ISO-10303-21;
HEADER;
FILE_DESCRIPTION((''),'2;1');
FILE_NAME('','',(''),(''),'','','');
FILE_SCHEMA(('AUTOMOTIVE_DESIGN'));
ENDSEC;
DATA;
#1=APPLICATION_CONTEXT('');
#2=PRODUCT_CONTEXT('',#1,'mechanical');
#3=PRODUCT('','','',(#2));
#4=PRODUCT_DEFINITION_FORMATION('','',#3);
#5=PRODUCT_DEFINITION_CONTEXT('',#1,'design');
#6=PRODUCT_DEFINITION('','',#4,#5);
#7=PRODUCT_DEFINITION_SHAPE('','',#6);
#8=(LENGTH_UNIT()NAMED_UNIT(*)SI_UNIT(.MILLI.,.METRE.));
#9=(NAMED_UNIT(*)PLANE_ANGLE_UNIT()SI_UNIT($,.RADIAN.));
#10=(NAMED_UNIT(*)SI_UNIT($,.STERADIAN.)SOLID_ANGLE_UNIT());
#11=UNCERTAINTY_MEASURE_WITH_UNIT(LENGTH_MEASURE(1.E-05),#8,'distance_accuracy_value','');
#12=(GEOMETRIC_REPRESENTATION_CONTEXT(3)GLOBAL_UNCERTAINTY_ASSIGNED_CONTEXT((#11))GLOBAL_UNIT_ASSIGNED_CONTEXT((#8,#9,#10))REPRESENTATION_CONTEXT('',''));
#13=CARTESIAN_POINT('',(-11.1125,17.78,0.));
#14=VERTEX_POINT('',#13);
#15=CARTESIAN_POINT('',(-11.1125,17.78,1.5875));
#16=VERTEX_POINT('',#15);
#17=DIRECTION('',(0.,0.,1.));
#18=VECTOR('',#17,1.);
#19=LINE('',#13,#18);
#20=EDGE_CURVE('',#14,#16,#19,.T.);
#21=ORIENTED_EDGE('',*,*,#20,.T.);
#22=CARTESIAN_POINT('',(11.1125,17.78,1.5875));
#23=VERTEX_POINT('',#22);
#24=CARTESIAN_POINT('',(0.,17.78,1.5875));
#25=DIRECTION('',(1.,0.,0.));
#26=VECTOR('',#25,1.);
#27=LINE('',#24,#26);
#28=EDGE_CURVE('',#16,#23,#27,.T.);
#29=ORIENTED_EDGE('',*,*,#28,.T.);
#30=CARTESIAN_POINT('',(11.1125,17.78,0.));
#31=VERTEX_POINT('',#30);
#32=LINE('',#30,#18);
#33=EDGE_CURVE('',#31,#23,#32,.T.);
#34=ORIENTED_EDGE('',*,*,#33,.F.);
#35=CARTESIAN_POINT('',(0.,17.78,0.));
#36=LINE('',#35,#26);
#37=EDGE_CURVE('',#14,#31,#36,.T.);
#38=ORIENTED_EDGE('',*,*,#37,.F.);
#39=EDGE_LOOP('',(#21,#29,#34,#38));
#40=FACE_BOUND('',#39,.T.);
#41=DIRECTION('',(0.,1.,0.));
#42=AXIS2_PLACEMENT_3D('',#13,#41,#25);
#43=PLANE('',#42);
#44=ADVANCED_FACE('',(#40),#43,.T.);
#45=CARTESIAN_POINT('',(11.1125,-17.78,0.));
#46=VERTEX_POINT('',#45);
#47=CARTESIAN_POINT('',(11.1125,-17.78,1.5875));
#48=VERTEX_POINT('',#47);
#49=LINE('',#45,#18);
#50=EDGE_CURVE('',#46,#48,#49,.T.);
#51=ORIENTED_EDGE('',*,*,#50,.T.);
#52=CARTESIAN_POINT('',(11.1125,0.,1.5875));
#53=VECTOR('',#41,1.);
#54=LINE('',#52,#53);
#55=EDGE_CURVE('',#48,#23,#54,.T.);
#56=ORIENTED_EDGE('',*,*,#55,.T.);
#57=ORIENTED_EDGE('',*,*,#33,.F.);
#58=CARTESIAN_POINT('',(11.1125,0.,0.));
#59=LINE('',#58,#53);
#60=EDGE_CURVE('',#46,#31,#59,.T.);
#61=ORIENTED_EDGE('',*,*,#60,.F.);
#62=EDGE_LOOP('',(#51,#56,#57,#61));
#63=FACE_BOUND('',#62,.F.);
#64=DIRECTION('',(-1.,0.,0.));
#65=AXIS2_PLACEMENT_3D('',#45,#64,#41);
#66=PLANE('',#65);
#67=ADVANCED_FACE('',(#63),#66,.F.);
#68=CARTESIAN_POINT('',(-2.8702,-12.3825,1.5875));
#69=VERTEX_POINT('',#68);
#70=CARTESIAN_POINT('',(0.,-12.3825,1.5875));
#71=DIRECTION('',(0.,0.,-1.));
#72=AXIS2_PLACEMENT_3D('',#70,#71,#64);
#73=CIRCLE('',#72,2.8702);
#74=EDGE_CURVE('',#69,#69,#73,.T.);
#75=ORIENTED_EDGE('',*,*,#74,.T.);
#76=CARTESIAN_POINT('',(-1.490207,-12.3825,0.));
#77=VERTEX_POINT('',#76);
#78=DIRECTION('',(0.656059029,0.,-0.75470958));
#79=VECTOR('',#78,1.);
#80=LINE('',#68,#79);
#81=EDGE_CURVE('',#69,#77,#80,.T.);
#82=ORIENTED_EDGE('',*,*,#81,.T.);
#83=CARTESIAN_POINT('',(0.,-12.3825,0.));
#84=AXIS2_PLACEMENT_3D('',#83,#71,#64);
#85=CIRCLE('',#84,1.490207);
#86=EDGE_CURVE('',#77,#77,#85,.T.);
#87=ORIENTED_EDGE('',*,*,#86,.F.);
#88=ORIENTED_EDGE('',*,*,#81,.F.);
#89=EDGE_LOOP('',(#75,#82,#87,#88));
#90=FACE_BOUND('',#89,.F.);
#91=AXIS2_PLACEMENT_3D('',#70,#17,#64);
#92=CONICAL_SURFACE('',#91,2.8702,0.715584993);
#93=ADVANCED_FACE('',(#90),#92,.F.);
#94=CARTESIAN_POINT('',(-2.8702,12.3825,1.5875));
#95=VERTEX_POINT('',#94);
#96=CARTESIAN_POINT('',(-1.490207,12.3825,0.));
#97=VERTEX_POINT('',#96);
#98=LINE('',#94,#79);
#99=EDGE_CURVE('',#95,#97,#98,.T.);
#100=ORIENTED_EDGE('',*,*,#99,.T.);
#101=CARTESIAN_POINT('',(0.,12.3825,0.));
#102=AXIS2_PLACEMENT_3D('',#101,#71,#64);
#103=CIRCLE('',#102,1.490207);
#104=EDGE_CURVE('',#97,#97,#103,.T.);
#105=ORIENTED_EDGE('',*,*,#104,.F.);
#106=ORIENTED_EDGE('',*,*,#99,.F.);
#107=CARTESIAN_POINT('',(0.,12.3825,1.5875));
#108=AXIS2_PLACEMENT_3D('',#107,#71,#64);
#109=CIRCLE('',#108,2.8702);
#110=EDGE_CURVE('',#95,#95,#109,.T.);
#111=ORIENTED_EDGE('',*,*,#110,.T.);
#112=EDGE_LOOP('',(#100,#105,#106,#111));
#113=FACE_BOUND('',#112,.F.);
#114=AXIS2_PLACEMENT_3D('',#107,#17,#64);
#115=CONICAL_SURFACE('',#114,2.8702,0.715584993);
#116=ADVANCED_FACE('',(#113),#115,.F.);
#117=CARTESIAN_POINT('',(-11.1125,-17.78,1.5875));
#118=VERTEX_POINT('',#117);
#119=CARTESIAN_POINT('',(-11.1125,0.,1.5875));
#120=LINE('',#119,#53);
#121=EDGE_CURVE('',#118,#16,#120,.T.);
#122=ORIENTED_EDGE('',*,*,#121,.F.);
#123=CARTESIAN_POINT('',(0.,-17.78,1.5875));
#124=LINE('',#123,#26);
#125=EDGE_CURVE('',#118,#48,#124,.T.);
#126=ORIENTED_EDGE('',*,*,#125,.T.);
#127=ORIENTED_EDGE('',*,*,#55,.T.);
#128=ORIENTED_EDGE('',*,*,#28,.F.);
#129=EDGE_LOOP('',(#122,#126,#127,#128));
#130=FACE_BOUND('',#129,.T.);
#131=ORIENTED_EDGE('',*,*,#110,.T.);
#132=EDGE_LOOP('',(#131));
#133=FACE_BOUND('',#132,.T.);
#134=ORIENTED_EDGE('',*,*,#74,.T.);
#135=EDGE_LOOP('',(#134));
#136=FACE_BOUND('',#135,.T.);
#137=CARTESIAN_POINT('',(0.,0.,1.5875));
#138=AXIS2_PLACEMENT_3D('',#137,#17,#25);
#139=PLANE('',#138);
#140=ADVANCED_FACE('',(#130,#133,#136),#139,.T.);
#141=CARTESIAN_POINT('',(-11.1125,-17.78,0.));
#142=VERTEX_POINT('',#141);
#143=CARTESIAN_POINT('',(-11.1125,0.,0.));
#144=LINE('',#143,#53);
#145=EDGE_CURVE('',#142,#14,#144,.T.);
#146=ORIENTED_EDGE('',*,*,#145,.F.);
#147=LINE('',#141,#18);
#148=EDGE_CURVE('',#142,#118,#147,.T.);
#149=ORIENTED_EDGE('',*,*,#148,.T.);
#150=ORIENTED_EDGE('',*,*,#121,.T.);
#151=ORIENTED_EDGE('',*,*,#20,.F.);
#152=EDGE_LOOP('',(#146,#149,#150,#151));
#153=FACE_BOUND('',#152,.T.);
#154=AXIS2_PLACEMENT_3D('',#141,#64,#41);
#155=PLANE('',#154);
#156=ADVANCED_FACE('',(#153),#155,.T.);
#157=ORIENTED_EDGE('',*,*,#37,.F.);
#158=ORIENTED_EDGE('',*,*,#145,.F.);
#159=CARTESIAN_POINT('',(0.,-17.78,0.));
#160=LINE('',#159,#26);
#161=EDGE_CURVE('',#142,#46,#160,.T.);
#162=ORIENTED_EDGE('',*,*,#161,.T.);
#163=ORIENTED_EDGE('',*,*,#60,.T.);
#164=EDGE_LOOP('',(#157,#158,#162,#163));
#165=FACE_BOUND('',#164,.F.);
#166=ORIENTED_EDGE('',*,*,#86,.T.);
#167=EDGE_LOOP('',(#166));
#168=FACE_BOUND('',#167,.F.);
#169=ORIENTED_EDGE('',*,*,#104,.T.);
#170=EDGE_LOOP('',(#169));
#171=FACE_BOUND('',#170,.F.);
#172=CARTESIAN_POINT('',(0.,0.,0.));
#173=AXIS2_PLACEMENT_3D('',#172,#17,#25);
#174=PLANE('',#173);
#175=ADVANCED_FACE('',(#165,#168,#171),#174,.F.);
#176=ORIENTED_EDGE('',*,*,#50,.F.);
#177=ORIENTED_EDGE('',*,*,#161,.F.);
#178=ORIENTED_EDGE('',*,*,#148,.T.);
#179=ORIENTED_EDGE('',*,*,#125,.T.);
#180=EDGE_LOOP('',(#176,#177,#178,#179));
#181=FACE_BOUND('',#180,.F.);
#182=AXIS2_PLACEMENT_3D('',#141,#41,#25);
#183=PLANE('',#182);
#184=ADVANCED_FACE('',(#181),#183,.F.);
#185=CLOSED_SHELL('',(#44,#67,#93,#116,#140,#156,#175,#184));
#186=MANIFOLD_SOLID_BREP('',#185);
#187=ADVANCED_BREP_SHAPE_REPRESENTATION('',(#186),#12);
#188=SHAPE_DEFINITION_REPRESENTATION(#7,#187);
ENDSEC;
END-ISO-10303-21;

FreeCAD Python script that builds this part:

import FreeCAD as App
import Part
import Sketcher
from FreeCAD import Vector
Q = App.Units.Quantity

doc = App.newDocument("Part")
body = doc.addObject("PartDesign::Body", "Body")

sketch1 = body.newObject("Sketcher::SketchObject", "Sketch")
sketch1.AttachmentSupport = (doc.getObject("XY_Plane"), [""])
sketch1.MapMode = "FlatFace"
sketch1.addGeometry(Part.LineSegment(Vector(-11, 18, 0), Vector(-11, -18, 0)), False)
sketch1.addGeometry(Part.LineSegment(Vector(-11, -18, 0), Vector(11, -18, 0)), False)
sketch1.addGeometry(Part.LineSegment(Vector(11, -18, 0), Vector(11, 18, 0)), False)
sketch1.addGeometry(Part.LineSegment(Vector(11, 18, 0), Vector(-11, 18, 0)), False)
sketch1.addConstraint(Sketcher.Constraint("Coincident", 0, 2, 1, 1))
sketch1.addConstraint(Sketcher.Constraint("Coincident", 1, 2, 2, 1))
sketch1.addConstraint(Sketcher.Constraint("Coincident", 2, 2, 3, 1))
sketch1.addConstraint(Sketcher.Constraint("Coincident", 3, 2, 0, 1))
sketch1.addConstraint(Sketcher.Constraint("Vertical", 0))
sketch1.addConstraint(Sketcher.Constraint("Horizontal", 1))
sketch1.addConstraint(Sketcher.Constraint("Vertical", 2))
sketch1.addConstraint(Sketcher.Constraint("Horizontal", 3))
sketch1.addConstraint(Sketcher.Constraint("Symmetric", 0, 2, 2, 2, -1, 1))
sketch1.addConstraint(Sketcher.Constraint("DistanceY", 0, 2, 0, 1, Q("1.4 in")))
sketch1.addConstraint(Sketcher.Constraint("DistanceX", 1, 1, 1, 2, Q("0.875 in")))
pad1 = body.newObject("PartDesign::Pad", "Pad")
pad1.Profile = sketch1
pad1.Length = Q("0.0625 in")

sketch2 = body.newObject("Sketcher::SketchObject", "Sketch001")
sketch2.AttachmentSupport = (doc.getObject("XY_Plane"), [""])
sketch2.MapMode = "FlatFace"
sketch2.AttachmentOffset = App.Placement(Vector(0, 0, 0.0625 * 25.4), App.Rotation())
sketch2.addGeometry(Part.Circle(Vector(0, 12.4, 0), Vector(0, 0, 1), 1.5), False)
sketch2.addGeometry(Part.Circle(Vector(0, -12.4, 0), Vector(0, 0, 1), 1.5), False)
sketch2.addConstraint(Sketcher.Constraint("Equal", 0, 1))
sketch2.addConstraint(Sketcher.Constraint("Symmetric", 0, 3, 1, 3, -1, 1))
sketch2.addConstraint(Sketcher.Constraint("PointOnObject", 0, 3, -2))
sketch2.addConstraint(Sketcher.Constraint("Diameter", 0, Q("0.116 in")))
sketch2.addConstraint(Sketcher.Constraint("DistanceY", 1, 3, 0, 3, Q("0.975 in")))
doc.recompute()
hole = body.newObject("PartDesign::Hole", "Hole")
hole.Profile = sketch2
hole.ThreadType = "None"
hole.Diameter = Q("0.116 in")
hole.DepthType = "ThroughAll"
hole.HoleCutType = "Countersink"
hole.HoleCutDiameter = Q("0.226 in")
hole.HoleCutCountersinkAngle = 82

doc.recompute()
